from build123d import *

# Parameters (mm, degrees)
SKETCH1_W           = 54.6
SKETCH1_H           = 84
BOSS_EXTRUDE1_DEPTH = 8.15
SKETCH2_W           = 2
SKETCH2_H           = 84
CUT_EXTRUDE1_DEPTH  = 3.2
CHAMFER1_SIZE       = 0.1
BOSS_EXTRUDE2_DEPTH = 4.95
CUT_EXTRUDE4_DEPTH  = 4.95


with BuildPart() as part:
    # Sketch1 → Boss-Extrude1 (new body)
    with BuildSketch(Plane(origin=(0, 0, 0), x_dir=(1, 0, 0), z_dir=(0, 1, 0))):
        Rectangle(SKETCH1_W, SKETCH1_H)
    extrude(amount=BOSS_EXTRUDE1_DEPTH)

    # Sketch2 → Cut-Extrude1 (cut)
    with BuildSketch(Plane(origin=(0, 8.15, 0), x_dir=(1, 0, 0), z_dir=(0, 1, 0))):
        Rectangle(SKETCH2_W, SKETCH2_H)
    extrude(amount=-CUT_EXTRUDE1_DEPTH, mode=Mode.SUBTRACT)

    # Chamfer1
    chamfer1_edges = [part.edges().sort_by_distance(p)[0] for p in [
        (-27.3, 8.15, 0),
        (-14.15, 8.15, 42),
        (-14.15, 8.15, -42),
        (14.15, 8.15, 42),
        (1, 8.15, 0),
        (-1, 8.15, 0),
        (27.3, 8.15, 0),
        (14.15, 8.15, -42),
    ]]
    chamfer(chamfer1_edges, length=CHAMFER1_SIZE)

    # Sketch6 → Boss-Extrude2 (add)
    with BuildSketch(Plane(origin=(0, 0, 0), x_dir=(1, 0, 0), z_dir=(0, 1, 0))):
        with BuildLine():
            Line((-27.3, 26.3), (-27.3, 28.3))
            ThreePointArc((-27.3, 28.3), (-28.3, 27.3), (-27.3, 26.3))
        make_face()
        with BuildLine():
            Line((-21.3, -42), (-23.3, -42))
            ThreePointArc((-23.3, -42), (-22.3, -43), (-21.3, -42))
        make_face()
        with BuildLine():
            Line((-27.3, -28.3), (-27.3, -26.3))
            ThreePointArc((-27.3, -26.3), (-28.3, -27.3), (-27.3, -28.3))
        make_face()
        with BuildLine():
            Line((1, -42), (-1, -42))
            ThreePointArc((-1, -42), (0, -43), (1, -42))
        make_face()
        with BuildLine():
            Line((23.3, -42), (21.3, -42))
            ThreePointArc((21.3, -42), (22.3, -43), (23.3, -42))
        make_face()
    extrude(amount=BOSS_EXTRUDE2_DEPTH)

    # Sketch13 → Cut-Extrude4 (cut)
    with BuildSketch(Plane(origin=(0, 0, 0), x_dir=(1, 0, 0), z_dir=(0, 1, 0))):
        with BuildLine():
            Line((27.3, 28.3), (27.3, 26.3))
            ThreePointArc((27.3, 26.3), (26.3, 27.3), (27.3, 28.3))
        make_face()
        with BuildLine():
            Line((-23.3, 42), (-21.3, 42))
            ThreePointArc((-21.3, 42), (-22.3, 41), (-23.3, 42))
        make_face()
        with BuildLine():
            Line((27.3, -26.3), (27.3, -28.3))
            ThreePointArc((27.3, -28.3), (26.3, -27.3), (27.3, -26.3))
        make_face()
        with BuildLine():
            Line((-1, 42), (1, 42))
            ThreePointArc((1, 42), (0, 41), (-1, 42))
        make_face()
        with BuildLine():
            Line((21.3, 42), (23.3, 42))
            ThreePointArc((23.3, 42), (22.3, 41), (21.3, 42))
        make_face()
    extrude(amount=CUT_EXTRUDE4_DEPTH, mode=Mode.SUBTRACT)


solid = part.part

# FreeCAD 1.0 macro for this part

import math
import FreeCAD as App
import Part
import Sketcher
from FreeCAD import Vector
Q = App.Units.Quantity


def edges_at(feature, points):
    """Names of the edges that pass closest to the given points."""
    edges = feature.Shape.Edges
    near = lambda p: min(range(len(edges)), key=lambda i: edges[i].distToShape(Part.Vertex(*p))[0])
    return sorted({f"Edge{near(p) + 1}" for p in points})


def add_polygon(sketch, points):
    """Adds a closed chain of lines whose ends are joined by coincident constraints."""
    first, n = sketch.GeometryCount, len(points)
    for a, b in zip(points, points[1:] + points[:1]):
        sketch.addGeometry(Part.LineSegment(App.Vector(*a, 0), App.Vector(*b, 0)), False)
    for i in range(n):
        sketch.addConstraint(Sketcher.Constraint("Coincident", first + i, 2, first + (i + 1) % n, 1))

doc = App.newDocument("Part")
body = doc.addObject("PartDesign::Body", "Body")

sketch1 = body.newObject("Sketcher::SketchObject", "Sketch")
sketch1.AttachmentSupport = (doc.getObject("XZ_Plane"), [""])
sketch1.MapMode = "FlatFace"
add_polygon(sketch1, [(-27, -42), (-27, 42), (27, 42), (27, -42)])
sketch1.addConstraint([
    Sketcher.Constraint("Vertical", 0),
    Sketcher.Constraint("Horizontal", 1),
    Sketcher.Constraint("Vertical", 2),
    Sketcher.Constraint("Horizontal", 3),
    Sketcher.Constraint("Symmetric", 0, 2, 2, 2, -1, 1),
    Sketcher.Constraint("DistanceY", 0, 1, 0, 2, Q("84 mm")),
    Sketcher.Constraint("DistanceX", 1, 1, 1, 2, Q("54.6 mm")),
])
pad1 = body.newObject("PartDesign::Pad", "Pad")
pad1.Profile = sketch1
pad1.Length = 8.15
pad1.Reversed = True

sketch2 = body.newObject("Sketcher::SketchObject", "Sketch001")
sketch2.AttachmentSupport = (doc.getObject("XZ_Plane"), [""])
sketch2.MapMode = "FlatFace"
sketch2.AttachmentOffset = App.Placement(Vector(0, 0, -8.15), App.Rotation())
add_polygon(sketch2, [(-1, -42), (-1, 42), (1, 42), (1, -42)])
sketch2.addConstraint([
    Sketcher.Constraint("Vertical", 0),
    Sketcher.Constraint("Horizontal", 1),
    Sketcher.Constraint("Vertical", 2),
    Sketcher.Constraint("Horizontal", 3),
    Sketcher.Constraint("Symmetric", 0, 2, 2, 2, -1, 1),
    Sketcher.Constraint("DistanceX", 1, 1, 1, 2, Q("2 mm")),
    Sketcher.Constraint("DistanceY", 0, 1, 0, 2, Q("84 mm")),
])
pocket1 = body.newObject("PartDesign::Pocket", "Pocket")
pocket1.Profile = sketch2
pocket1.Length = 3.2
pocket1.Reversed = True
doc.recompute()

chamfer = body.newObject("PartDesign::Chamfer", "Chamfer")
chamfer.Base = (pocket1, edges_at(pocket1, [
    (-27.3, 8.15, 0),
    (-14.15, 8.15, 42),
    (-14.15, 8.15, -42),
    (14.15, 8.15, 42),
    (1, 8.15, 0),
    (-1, 8.15, 0),
    (27.3, 8.15, 0),
    (14.15, 8.15, -42),
]))
chamfer.Size = 0.1

sketch3 = body.newObject("Sketcher::SketchObject", "Sketch002")
sketch3.AttachmentSupport = (doc.getObject("XZ_Plane"), [""])
sketch3.MapMode = "FlatFace"
sketch3.addGeometry([
    Part.LineSegment(Vector(-27.3, -26.3, 0), Vector(-27.3, -28.3, 0)),
    Part.ArcOfCircle(Part.Circle(Vector(-27.3, -27.3, 0), Vector(0, 0, 1), 1), math.radians(90), math.radians(270)),
    Part.LineSegment(Vector(-21.3, 42, 0), Vector(-23.3, 42, 0)),
    Part.ArcOfCircle(Part.Circle(Vector(-22.3, 42, 0), Vector(0, 0, 1), 1), math.radians(0), math.radians(180)),
    Part.LineSegment(Vector(-27.3, 28.3, 0), Vector(-27.3, 26.3, 0)),
    Part.ArcOfCircle(Part.Circle(Vector(-27.3, 27.3, 0), Vector(0, 0, 1), 1), math.radians(90), math.radians(270)),
    Part.LineSegment(Vector(1, 42, 0), Vector(-1, 42, 0)),
    Part.ArcOfCircle(Part.Circle(Vector(0, 42, 0), Vector(0, 0, 1), 1), math.radians(0), math.radians(180)),
    Part.LineSegment(Vector(23.3, 42, 0), Vector(21.3, 42, 0)),
    Part.ArcOfCircle(Part.Circle(Vector(22.3, 42, 0), Vector(0, 0, 1), 1), math.radians(0), math.radians(180)),
], False)
sketch3.addConstraint([
    Sketcher.Constraint("Coincident", 0, 1, 1, 1),
    Sketcher.Constraint("Coincident", 1, 2, 0, 2),
    Sketcher.Constraint("Coincident", 2, 1, 3, 1),
    Sketcher.Constraint("Coincident", 3, 2, 2, 2),
    Sketcher.Constraint("Coincident", 4, 1, 5, 1),
    Sketcher.Constraint("Coincident", 5, 2, 4, 2),
    Sketcher.Constraint("Coincident", 6, 1, 7, 1),
    Sketcher.Constraint("Coincident", 7, 2, 6, 2),
    Sketcher.Constraint("Coincident", 8, 1, 9, 1),
    Sketcher.Constraint("Coincident", 9, 2, 8, 2),
    Sketcher.Constraint("Vertical", 0),
    Sketcher.Constraint("Horizontal", 2),
    Sketcher.Constraint("Vertical", 4),
    Sketcher.Constraint("Horizontal", 6),
    Sketcher.Constraint("Horizontal", 8),
    Sketcher.Constraint("Equal", 1, 3),
    Sketcher.Constraint("Equal", 3, 5),
    Sketcher.Constraint("Equal", 5, 7),
    Sketcher.Constraint("Equal", 7, 9),
    Sketcher.Constraint("Symmetric", 3, 3, 9, 3, -2),
    Sketcher.Constraint("Symmetric", 1, 3, 5, 3, -1),
    Sketcher.Constraint("PointOnObject", 7, 3, -2),
    Sketcher.Constraint("Horizontal", 3, 3, 7, 3),
    Sketcher.Constraint("Horizontal", 9, 3, 2, 1),
    Sketcher.Constraint("Horizontal", 3, 2, 6, 1),
    Sketcher.Constraint("Horizontal", 7, 2, 8, 1),
    Sketcher.Constraint("Vertical", 5, 3, 0, 1),
    Sketcher.Constraint("Vertical", 1, 2, 4, 1),
    Sketcher.Constraint("Radius", 1, Q("1 mm")),
    Sketcher.Constraint("DistanceY", -1, 1, 3, 3, Q("42 mm")),
    Sketcher.Constraint("DistanceX", 1, 3, 3, 3, Q("5 mm")),
    Sketcher.Constraint("DistanceX", 1, 3, -1, 1, Q("27.3 mm")),
    Sketcher.Constraint("DistanceY", 1, 3, -1, 1, Q("27.3 mm")),
])
pad2 = body.newObject("PartDesign::Pad", "Pad001")
pad2.Profile = sketch3
pad2.Length = 4.95
pad2.Reversed = True

sketch4 = body.newObject("Sketcher::SketchObject", "Sketch003")
sketch4.AttachmentSupport = (doc.getObject("XZ_Plane"), [""])
sketch4.MapMode = "FlatFace"
sketch4.addGeometry([
    Part.LineSegment(Vector(27.3, -26.3, 0), Vector(27.3, -28.3, 0)),
    Part.ArcOfCircle(Part.Circle(Vector(27.3, -27.3, 0), Vector(0, 0, 1), 1), math.radians(90), math.radians(270)),
    Part.LineSegment(Vector(-21.3, -42, 0), Vector(-23.3, -42, 0)),
    Part.ArcOfCircle(Part.Circle(Vector(-22.3, -42, 0), Vector(0, 0, 1), 1), math.radians(0), math.radians(180)),
    Part.LineSegment(Vector(27.3, 28.3, 0), Vector(27.3, 26.3, 0)),
    Part.ArcOfCircle(Part.Circle(Vector(27.3, 27.3, 0), Vector(0, 0, 1), 1), math.radians(90), math.radians(270)),
    Part.LineSegment(Vector(1, -42, 0), Vector(-1, -42, 0)),
    Part.ArcOfCircle(Part.Circle(Vector(0, -42, 0), Vector(0, 0, 1), 1), math.radians(0), math.radians(180)),
    Part.LineSegment(Vector(23.3, -42, 0), Vector(21.3, -42, 0)),
    Part.ArcOfCircle(Part.Circle(Vector(22.3, -42, 0), Vector(0, 0, 1), 1), math.radians(0), math.radians(180)),
], False)
sketch4.addConstraint([
    Sketcher.Constraint("Coincident", 0, 1, 1, 1),
    Sketcher.Constraint("Coincident", 1, 2, 0, 2),
    Sketcher.Constraint("Coincident", 2, 1, 3, 1),
    Sketcher.Constraint("Coincident", 3, 2, 2, 2),
    Sketcher.Constraint("Coincident", 4, 1, 5, 1),
    Sketcher.Constraint("Coincident", 5, 2, 4, 2),
    Sketcher.Constraint("Coincident", 6, 1, 7, 1),
    Sketcher.Constraint("Coincident", 7, 2, 6, 2),
    Sketcher.Constraint("Coincident", 8, 1, 9, 1),
    Sketcher.Constraint("Coincident", 9, 2, 8, 2),
    Sketcher.Constraint("Vertical", 0),
    Sketcher.Constraint("Horizontal", 2),
    Sketcher.Constraint("Vertical", 4),
    Sketcher.Constraint("Horizontal", 6),
    Sketcher.Constraint("Horizontal", 8),
    Sketcher.Constraint("Equal", 1, 3),
    Sketcher.Constraint("Equal", 3, 5),
    Sketcher.Constraint("Equal", 5, 7),
    Sketcher.Constraint("Equal", 7, 9),
    Sketcher.Constraint("Symmetric", 3, 3, 9, 3, -2),
    Sketcher.Constraint("Symmetric", 1, 3, 5, 3, -1),
    Sketcher.Constraint("PointOnObject", 7, 3, -2),
    Sketcher.Constraint("Horizontal", 3, 3, 7, 3),
    Sketcher.Constraint("Horizontal", 9, 3, 2, 1),
    Sketcher.Constraint("Horizontal", 3, 2, 6, 1),
    Sketcher.Constraint("Horizontal", 7, 2, 8, 1),
    Sketcher.Constraint("Vertical", 5, 3, 0, 1),
    Sketcher.Constraint("Vertical", 1, 2, 4, 1),
    Sketcher.Constraint("Radius", 1, Q("1 mm")),
    Sketcher.Constraint("DistanceY", 3, 3, -1, 1, Q("42 mm")),
    Sketcher.Constraint("DistanceX", 9, 3, 1, 3, Q("5 mm")),
    Sketcher.Constraint("DistanceX", -1, 1, 1, 3, Q("27.3 mm")),
    Sketcher.Constraint("DistanceY", 1, 3, -1, 1, Q("27.3 mm")),
])
pocket2 = body.newObject("PartDesign::Pocket", "Pocket001")
pocket2.Profile = sketch4
pocket2.Length = 4.95

doc.recompute()
